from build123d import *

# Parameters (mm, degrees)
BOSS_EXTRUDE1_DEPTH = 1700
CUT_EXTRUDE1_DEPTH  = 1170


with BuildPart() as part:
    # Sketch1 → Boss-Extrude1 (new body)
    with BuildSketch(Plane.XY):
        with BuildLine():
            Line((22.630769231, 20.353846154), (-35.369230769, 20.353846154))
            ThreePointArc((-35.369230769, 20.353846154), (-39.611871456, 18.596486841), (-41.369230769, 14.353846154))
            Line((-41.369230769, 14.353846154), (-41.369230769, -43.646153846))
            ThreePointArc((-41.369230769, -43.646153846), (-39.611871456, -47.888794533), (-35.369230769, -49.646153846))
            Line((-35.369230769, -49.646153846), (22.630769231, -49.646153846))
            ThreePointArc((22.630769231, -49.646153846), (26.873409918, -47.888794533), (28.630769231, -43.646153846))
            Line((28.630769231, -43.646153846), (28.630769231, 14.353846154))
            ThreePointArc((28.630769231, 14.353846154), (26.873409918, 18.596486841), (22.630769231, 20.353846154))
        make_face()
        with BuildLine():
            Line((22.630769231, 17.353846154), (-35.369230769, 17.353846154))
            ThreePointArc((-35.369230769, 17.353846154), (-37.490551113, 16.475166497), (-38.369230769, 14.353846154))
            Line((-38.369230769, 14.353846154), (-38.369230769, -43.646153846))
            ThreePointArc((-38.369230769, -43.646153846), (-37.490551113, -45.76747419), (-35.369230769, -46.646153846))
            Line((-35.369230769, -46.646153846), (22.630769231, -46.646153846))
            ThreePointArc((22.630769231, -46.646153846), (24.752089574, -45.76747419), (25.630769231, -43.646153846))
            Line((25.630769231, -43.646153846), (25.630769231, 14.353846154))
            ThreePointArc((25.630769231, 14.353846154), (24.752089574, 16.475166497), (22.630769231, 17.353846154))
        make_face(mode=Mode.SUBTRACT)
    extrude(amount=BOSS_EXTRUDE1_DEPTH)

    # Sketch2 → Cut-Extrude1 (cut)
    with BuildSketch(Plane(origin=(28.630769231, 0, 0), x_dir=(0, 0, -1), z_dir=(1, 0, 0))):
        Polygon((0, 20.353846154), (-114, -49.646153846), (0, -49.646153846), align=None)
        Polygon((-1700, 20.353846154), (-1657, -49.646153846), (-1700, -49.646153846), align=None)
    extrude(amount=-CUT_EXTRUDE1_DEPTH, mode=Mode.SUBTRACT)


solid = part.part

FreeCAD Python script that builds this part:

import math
import FreeCAD as App
import Part
import Sketcher
Q = App.Units.Quantity

doc = App.newDocument("Part")
params = doc.addObject("Spreadsheet::Sheet", "Params")
for row, (alias, value) in enumerate([
    ("sketch1_radius", "6 mm"),
    ("sketch1_radius2", "3 mm"),
    ("sketch1_width", "58 mm"),
    ("pad1_length", "1700 mm"),
    ("sketch2_width", "70 mm"),
    ("sketch2_height", "114 mm"),
    ("sketch2_height2", "43 mm"),
    ("pocket1_length", "1170 mm"),
], start=1):
    params.set(f"A{row}", alias)
    params.set(f"B{row}", "=" + value)
    params.setAlias(f"B{row}", alias)

body = doc.addObject("PartDesign::Body", "Body")

# Sketch on XY plane
sketch1 = doc.addObject("Sketcher::SketchObject", "Sketch")
body.addObject(sketch1)
sketch1.AttachmentSupport = (doc.XY_Plane, [""])
sketch1.MapMode = "FlatFace"
sketch1.addGeometry([
    Part.LineSegment(App.Vector(22.630769, 20.353846, 0), App.Vector(-35.369231, 20.353846, 0)),  # 0
    Part.ArcOfCircle(Part.Circle(App.Vector(-35.369231, 14.353846, 0), App.Vector(0, 0, 1), 6), math.radians(90), math.radians(180)),  # 1
    Part.LineSegment(App.Vector(-41.369231, 14.353846, 0), App.Vector(-41.369231, -43.646154, 0)),  # 2
    Part.ArcOfCircle(Part.Circle(App.Vector(-35.369231, -43.646154, 0), App.Vector(0, 0, 1), 6), math.radians(180), math.radians(270)),  # 3
    Part.LineSegment(App.Vector(-35.369231, -49.646154, 0), App.Vector(22.630769, -49.646154, 0)),  # 4
    Part.ArcOfCircle(Part.Circle(App.Vector(22.630769, -43.646154, 0), App.Vector(0, 0, 1), 6), math.radians(-90), math.radians(0)),  # 5
    Part.LineSegment(App.Vector(28.630769, -43.646154, 0), App.Vector(28.630769, 14.353846, 0)),  # 6
    Part.ArcOfCircle(Part.Circle(App.Vector(22.630769, 14.353846, 0), App.Vector(0, 0, 1), 6), math.radians(0), math.radians(90)),  # 7
    Part.LineSegment(App.Vector(-35.369231, 17.353846, 0), App.Vector(22.630769, 17.353846, 0)),  # 8
    Part.ArcOfCircle(Part.Circle(App.Vector(22.630769, 14.353846, 0), App.Vector(0, 0, 1), 3), math.radians(0), math.radians(90)),  # 9
    Part.LineSegment(App.Vector(25.630769, 14.353846, 0), App.Vector(25.630769, -43.646154, 0)),  # 10
    Part.ArcOfCircle(Part.Circle(App.Vector(22.630769, -43.646154, 0), App.Vector(0, 0, 1), 3), math.radians(-90), math.radians(0)),  # 11
    Part.LineSegment(App.Vector(22.630769, -46.646154, 0), App.Vector(-35.369231, -46.646154, 0)),  # 12
    Part.ArcOfCircle(Part.Circle(App.Vector(-35.369231, -43.646154, 0), App.Vector(0, 0, 1), 3), math.radians(180), math.radians(270)),  # 13
    Part.LineSegment(App.Vector(-38.369231, -43.646154, 0), App.Vector(-38.369231, 14.353846, 0)),  # 14
    Part.ArcOfCircle(Part.Circle(App.Vector(-35.369231, 14.353846, 0), App.Vector(0, 0, 1), 3), math.radians(90), math.radians(180)),  # 15
], False)
sketch1.addConstraint([
    Sketcher.Constraint("Tangent", 0, 2, 1, 1),
    Sketcher.Constraint("Tangent", 1, 2, 2, 1),
    Sketcher.Constraint("Tangent", 2, 2, 3, 1),
    Sketcher.Constraint("Tangent", 3, 2, 4, 1),
    Sketcher.Constraint("Tangent", 4, 2, 5, 1),
    Sketcher.Constraint("Tangent", 5, 2, 6, 1),
    Sketcher.Constraint("Tangent", 6, 2, 7, 1),
    Sketcher.Constraint("Tangent", 7, 2, 0, 1),
    Sketcher.Constraint("Tangent", 8, 2, 9, 2),
    Sketcher.Constraint("Tangent", 9, 1, 10, 1),
    Sketcher.Constraint("Tangent", 10, 2, 11, 2),
    Sketcher.Constraint("Tangent", 11, 1, 12, 1),
    Sketcher.Constraint("Tangent", 12, 2, 13, 2),
    Sketcher.Constraint("Tangent", 13, 1, 14, 1),
    Sketcher.Constraint("Tangent", 14, 2, 15, 2),
    Sketcher.Constraint("Tangent", 15, 1, 8, 1),
    Sketcher.Constraint("Horizontal", 0),
    Sketcher.Constraint("Vertical", 2),
    Sketcher.Constraint("Horizontal", 4),
    Sketcher.Constraint("Vertical", 6),
    Sketcher.Constraint("Horizontal", 8),
    Sketcher.Constraint("Vertical", 10),
    Sketcher.Constraint("Horizontal", 12),
    Sketcher.Constraint("Vertical", 14),
    Sketcher.Constraint("Coincident", 9, 3, 7, 3),
    Sketcher.Constraint("Coincident", 11, 3, 5, 3),
    Sketcher.Constraint("Coincident", 13, 3, 3, 3),
    Sketcher.Constraint("Equal", 1, 3),
    Sketcher.Constraint("Equal", 3, 5),
    Sketcher.Constraint("Equal", 5, 7),
    Sketcher.Constraint("Equal", 13, 15),
    Sketcher.Constraint("Equal", 12, 2),
    Sketcher.Constraint("Radius", 1, Q("6 mm")),
    Sketcher.Constraint("Radius", 9, Q("3 mm")),
    Sketcher.Constraint("DistanceX", 0, 2, 0, 1, Q("58 mm")),
    Sketcher.Constraint("DistanceX", 1, 3, -1, 1, Q("35.369231 mm")),
    Sketcher.Constraint("DistanceY", -1, 1, 1, 3, Q("14.353846 mm")),
])
sketch1.setExpression("Constraints[32]", "Params.sketch1_radius")
sketch1.setExpression("Constraints[33]", "Params.sketch1_radius2")
sketch1.setExpression("Constraints[34]", "Params.sketch1_width")
pad1 = doc.addObject("PartDesign::Pad", "Pad")
body.addObject(pad1)
pad1.Profile = sketch1
pad1.setExpression("Length", "Params.pad1_length")

# Sketch on YZ plane
sketch2 = doc.addObject("Sketcher::SketchObject", "Sketch001")
body.addObject(sketch2)
sketch2.AttachmentSupport = (doc.YZ_Plane, [""])
sketch2.MapMode = "FlatFace"
sketch2.AttachmentOffset = App.Placement(App.Vector(0, 0, 28.630769), App.Rotation())
sketch2.addGeometry([
    Part.LineSegment(App.Vector(20.353846, 0, 0), App.Vector(-49.646154, 114, 0)),  # 0
    Part.LineSegment(App.Vector(-49.646154, 114, 0), App.Vector(-49.646154, 0, 0)),  # 1
    Part.LineSegment(App.Vector(-49.646154, 0, 0), App.Vector(20.353846, 0, 0)),  # 2
    Part.LineSegment(App.Vector(-49.646154, 1657, 0), App.Vector(20.353846, 1700, 0)),  # 3
    Part.LineSegment(App.Vector(20.353846, 1700, 0), App.Vector(-49.646154, 1700, 0)),  # 4
    Part.LineSegment(App.Vector(-49.646154, 1700, 0), App.Vector(-49.646154, 1657, 0)),  # 5
], False)
sketch2.addConstraint([
    Sketcher.Constraint("Coincident", 0, 2, 1, 1),
    Sketcher.Constraint("Coincident", 1, 2, 2, 1),
    Sketcher.Constraint("Coincident", 2, 2, 0, 1),
    Sketcher.Constraint("Coincident", 3, 2, 4, 1),
    Sketcher.Constraint("Coincident", 4, 2, 5, 1),
    Sketcher.Constraint("Coincident", 5, 2, 3, 1),
    Sketcher.Constraint("Vertical", 1),
    Sketcher.Constraint("Horizontal", 2),
    Sketcher.Constraint("Horizontal", 4),
    Sketcher.Constraint("Vertical", 5),
    Sketcher.Constraint("PointOnObject", 1, 2, -1),
    Sketcher.Constraint("Vertical", 2, 2, 3, 2),
    Sketcher.Constraint("Vertical", 1, 2, 4, 2),
    Sketcher.Constraint("DistanceX", 2, 1, 2, 2, Q("70 mm")),
    Sketcher.Constraint("DistanceY", 1, 2, 1, 1, Q("114 mm")),
    Sketcher.Constraint("DistanceY", 5, 2, 5, 1, Q("43 mm")),
    Sketcher.Constraint("DistanceY", -1, 1, 3, 2, Q("1700 mm")),
    Sketcher.Constraint("DistanceX", 0, 2, -1, 1, Q("49.646154 mm")),
])
sketch2.setExpression("Constraints[13]", "Params.sketch2_width")
sketch2.setExpression("Constraints[14]", "Params.sketch2_height")
sketch2.setExpression("Constraints[15]", "Params.sketch2_height2")
pocket1 = doc.addObject("PartDesign::Pocket", "Pocket")
body.addObject(pocket1)
pocket1.Profile = sketch2
pocket1.setExpression("Length", "Params.pocket1_length")

doc.recompute()
